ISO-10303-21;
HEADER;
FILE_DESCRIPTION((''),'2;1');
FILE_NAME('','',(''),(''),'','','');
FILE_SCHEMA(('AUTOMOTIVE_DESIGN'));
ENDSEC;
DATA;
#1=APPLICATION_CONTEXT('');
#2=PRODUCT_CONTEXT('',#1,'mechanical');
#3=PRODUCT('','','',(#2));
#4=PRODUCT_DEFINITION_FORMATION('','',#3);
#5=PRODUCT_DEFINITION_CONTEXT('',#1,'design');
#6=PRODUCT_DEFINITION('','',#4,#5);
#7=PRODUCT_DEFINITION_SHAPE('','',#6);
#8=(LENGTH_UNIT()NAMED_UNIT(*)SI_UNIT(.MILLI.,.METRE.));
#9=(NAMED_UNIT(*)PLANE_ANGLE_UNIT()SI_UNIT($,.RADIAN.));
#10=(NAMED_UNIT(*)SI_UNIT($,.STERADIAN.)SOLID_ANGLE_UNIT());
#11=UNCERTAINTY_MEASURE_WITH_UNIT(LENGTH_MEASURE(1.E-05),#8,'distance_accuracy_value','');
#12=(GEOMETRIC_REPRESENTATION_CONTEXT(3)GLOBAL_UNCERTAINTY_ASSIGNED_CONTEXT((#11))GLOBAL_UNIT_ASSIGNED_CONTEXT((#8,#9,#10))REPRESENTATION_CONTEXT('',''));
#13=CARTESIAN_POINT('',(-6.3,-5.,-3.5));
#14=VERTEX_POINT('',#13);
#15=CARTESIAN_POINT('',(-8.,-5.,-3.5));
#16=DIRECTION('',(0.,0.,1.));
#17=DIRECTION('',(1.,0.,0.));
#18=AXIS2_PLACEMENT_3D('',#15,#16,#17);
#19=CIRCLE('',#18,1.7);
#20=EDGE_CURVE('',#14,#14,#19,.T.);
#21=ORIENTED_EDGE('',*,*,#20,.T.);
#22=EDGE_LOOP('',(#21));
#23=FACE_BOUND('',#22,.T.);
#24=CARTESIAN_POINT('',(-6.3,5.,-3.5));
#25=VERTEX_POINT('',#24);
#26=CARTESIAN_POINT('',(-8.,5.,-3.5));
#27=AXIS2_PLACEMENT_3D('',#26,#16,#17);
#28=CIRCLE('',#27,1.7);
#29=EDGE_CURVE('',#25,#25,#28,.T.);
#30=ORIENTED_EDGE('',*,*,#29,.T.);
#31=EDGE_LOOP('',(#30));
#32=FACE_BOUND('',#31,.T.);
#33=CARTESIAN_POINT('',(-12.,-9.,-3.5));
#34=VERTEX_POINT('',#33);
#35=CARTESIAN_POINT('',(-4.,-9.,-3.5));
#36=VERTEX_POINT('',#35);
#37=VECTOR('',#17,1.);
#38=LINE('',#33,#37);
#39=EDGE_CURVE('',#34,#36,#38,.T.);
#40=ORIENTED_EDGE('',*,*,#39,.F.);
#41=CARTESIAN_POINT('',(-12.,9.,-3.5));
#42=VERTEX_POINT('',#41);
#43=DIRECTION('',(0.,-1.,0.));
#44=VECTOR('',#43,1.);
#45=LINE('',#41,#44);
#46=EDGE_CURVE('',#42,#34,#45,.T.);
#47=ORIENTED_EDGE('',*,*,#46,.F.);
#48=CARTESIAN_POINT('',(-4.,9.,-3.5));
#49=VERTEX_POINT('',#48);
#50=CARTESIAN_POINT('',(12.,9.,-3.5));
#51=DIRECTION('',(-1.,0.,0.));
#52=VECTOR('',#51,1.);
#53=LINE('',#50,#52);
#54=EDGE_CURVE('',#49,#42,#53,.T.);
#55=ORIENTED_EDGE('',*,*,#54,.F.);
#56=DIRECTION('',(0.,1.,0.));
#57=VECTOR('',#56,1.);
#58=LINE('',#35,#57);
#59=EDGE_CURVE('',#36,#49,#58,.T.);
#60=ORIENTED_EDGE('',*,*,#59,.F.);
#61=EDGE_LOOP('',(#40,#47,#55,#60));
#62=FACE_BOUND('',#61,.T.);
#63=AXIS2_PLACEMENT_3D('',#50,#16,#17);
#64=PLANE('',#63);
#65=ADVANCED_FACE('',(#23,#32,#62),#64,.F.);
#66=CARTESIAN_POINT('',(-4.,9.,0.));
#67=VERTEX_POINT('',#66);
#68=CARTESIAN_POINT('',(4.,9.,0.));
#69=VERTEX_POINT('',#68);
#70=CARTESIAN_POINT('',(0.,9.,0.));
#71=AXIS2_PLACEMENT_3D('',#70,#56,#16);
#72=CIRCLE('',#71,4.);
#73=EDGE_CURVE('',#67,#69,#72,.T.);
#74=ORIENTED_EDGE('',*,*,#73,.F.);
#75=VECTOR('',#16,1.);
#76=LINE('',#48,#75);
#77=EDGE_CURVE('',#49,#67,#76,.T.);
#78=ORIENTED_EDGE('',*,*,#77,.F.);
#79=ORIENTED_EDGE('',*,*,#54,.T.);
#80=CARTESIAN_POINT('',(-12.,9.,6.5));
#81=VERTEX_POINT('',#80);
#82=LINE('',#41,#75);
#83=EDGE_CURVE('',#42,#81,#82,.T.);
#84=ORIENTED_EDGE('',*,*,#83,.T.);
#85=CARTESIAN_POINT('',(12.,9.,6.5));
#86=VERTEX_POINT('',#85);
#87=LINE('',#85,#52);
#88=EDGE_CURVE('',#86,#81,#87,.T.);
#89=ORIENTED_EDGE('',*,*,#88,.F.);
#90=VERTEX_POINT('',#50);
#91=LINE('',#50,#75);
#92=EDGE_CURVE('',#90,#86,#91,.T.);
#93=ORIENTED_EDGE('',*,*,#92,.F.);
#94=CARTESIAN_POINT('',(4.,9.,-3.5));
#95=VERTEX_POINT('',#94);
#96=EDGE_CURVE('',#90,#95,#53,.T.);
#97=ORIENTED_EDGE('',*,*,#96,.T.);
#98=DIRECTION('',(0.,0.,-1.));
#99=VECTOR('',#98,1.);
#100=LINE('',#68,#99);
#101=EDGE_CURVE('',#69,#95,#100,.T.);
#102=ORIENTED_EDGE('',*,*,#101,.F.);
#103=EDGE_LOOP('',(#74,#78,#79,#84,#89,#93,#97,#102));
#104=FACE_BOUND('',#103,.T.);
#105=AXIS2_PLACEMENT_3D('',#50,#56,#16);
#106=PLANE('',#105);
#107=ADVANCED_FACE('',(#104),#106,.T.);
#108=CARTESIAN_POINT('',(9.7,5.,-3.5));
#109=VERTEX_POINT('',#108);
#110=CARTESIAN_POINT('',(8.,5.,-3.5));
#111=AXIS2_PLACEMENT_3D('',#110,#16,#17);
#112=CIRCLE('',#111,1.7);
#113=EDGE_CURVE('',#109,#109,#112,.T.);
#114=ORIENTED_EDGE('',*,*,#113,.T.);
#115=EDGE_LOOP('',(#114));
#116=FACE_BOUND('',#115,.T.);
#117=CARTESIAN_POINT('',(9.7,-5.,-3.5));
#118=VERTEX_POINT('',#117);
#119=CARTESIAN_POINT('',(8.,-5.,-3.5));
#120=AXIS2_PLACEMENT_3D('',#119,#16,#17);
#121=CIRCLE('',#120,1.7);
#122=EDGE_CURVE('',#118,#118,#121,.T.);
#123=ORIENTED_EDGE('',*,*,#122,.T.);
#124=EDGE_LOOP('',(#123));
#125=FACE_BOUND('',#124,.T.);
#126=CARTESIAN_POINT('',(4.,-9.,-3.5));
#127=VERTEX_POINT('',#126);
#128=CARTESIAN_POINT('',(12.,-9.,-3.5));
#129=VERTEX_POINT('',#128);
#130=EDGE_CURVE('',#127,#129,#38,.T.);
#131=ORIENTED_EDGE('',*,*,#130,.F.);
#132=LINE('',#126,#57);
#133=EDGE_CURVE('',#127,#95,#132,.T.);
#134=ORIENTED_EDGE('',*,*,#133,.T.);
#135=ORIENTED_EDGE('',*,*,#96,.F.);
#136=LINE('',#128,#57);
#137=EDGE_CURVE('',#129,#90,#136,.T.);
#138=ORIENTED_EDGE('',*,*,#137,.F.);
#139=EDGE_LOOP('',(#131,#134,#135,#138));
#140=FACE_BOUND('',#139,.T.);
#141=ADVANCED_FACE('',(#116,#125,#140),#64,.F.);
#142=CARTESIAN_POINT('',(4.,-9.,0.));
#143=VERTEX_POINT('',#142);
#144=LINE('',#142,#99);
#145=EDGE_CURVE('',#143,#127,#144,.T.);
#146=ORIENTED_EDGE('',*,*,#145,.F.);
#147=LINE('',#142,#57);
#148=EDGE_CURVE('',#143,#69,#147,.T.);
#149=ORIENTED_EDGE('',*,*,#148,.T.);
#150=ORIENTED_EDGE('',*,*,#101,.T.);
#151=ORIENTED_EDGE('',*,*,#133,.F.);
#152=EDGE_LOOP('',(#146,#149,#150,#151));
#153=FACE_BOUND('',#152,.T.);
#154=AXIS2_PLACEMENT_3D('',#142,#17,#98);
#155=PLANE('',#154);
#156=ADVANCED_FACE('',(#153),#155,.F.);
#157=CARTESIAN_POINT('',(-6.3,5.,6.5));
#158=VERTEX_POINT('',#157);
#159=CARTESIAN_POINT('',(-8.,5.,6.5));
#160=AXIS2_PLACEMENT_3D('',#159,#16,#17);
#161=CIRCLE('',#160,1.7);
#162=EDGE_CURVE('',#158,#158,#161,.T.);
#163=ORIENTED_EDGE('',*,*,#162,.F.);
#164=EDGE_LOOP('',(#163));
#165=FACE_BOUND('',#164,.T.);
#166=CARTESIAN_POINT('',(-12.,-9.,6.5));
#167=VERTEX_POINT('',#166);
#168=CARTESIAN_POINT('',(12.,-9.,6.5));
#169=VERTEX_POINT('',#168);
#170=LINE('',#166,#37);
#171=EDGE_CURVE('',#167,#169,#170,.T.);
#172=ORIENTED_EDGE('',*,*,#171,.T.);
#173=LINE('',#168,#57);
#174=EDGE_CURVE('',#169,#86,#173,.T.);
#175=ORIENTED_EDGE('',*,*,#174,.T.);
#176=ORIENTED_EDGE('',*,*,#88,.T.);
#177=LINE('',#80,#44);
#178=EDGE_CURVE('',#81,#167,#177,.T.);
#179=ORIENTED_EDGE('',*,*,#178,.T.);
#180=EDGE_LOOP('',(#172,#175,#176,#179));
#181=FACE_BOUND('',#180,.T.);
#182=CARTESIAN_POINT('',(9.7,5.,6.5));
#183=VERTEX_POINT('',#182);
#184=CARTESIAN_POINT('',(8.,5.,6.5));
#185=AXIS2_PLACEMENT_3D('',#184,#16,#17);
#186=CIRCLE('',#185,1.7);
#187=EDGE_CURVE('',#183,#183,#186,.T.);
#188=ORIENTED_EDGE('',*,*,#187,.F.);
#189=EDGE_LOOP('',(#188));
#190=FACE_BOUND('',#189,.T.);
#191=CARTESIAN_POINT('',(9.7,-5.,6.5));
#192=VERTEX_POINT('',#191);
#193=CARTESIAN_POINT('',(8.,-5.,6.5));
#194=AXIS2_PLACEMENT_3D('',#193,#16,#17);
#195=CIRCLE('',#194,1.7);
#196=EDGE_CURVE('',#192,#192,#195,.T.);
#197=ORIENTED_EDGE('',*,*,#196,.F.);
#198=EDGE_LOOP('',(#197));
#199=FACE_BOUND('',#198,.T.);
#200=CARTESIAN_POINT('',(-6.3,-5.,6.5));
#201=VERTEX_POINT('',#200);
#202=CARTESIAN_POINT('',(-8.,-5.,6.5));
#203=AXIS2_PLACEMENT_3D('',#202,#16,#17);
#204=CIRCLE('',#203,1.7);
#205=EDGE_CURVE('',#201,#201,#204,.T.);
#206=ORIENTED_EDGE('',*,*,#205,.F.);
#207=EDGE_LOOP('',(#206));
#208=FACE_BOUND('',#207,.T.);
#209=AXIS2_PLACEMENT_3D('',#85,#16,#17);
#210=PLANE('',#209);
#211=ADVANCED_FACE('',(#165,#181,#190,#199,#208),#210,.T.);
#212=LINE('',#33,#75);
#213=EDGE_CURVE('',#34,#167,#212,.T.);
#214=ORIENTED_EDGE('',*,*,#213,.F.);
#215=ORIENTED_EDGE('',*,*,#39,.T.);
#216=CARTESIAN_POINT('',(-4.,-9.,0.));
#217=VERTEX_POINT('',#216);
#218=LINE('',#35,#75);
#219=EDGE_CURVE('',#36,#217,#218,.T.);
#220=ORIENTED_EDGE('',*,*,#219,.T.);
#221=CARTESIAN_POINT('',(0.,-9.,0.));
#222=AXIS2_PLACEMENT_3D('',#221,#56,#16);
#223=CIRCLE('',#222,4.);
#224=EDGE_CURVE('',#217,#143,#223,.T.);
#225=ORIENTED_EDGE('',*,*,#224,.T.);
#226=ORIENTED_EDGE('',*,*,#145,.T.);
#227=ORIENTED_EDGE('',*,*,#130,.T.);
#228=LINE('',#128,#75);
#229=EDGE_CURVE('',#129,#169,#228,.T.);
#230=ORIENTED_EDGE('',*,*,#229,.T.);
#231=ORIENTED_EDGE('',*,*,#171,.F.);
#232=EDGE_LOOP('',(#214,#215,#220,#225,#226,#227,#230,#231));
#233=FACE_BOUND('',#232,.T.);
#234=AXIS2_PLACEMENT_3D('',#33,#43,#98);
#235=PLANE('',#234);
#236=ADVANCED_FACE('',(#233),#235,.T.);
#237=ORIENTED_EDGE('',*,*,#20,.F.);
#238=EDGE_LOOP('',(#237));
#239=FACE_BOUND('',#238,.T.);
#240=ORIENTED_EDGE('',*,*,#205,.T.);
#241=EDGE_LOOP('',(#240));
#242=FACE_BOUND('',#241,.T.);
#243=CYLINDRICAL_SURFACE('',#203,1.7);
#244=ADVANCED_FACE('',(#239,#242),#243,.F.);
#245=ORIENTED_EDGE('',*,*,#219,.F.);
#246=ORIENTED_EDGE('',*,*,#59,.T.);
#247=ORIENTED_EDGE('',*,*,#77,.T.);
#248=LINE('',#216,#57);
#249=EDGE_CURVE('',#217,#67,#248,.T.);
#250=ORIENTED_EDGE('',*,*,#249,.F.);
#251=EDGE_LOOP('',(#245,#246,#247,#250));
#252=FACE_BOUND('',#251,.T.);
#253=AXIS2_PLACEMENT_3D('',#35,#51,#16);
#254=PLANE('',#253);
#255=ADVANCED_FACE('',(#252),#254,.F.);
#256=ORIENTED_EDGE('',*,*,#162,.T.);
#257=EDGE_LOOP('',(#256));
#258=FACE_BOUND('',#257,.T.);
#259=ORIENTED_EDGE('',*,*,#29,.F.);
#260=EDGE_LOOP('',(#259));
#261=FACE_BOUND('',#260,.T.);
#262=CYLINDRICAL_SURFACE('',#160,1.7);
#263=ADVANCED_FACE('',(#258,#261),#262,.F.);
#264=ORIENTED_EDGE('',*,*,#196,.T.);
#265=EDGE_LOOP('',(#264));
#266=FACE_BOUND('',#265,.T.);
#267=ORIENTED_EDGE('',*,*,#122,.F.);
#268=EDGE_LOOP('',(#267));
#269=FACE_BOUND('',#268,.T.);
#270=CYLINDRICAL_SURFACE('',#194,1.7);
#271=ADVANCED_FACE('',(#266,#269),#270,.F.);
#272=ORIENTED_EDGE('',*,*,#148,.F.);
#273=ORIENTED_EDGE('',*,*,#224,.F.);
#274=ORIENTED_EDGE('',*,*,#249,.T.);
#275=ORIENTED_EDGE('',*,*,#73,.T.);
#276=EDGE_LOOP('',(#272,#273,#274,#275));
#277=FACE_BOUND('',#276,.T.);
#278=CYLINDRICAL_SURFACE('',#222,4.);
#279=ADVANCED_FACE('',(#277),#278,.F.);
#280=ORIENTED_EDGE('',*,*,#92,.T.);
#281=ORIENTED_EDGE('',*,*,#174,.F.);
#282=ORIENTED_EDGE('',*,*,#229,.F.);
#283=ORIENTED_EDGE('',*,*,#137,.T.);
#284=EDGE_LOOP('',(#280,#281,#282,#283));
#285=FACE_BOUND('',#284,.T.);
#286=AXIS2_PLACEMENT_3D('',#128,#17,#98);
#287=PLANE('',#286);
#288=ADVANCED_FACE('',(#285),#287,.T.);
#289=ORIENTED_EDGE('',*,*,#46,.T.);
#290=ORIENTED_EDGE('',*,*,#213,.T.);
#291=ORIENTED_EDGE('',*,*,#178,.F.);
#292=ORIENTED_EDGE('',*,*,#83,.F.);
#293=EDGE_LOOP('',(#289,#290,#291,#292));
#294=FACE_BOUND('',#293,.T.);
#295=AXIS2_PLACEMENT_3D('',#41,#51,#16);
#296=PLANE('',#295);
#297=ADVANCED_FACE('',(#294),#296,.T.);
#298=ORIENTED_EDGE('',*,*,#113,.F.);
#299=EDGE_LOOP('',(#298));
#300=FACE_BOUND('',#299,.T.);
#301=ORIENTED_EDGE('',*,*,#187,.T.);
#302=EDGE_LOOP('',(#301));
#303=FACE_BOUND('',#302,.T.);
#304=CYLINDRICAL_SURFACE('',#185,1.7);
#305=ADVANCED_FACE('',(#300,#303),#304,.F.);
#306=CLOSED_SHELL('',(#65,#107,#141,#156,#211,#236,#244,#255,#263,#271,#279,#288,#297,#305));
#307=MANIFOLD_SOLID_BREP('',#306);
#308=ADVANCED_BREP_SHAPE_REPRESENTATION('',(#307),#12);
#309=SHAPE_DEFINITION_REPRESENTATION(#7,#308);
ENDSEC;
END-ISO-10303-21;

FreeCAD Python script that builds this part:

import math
import FreeCAD as App
import Part
import Sketcher


def add_polygon(sketch, points):
    """Adds a closed chain of lines whose ends are joined by coincident constraints."""
    first, n = sketch.GeometryCount, len(points)
    for a, b in zip(points, points[1:] + points[:1]):
        sketch.addGeometry(Part.LineSegment(App.Vector(*a, 0), App.Vector(*b, 0)), False)
    for i in range(n):
        sketch.addConstraint(Sketcher.Constraint("Coincident", first + i, 2, first + (i + 1) % n, 1))

doc = App.newDocument("Part")
params = doc.addObject("Spreadsheet::Sheet", "Params")
for row, (alias, value) in enumerate([
    ("sketch1_width", "24 mm"),
    ("sketch1_height", "18 mm"),
    ("pad1_length", "10 mm"),
    ("sketch2_radius", "4 mm"),
    ("sketch2_height", "3.5 mm"),
    ("sketch3_diameter", "3.4 mm"),
    ("hole_diameter", "3.4 mm"),
    ("sketch4_diameter", "3.4 mm"),
    ("hole2_diameter", "3.4 mm"),
    ("sketch5_diameter", "3.4 mm"),
    ("hole3_diameter", "3.4 mm"),
    ("sketch6_diameter", "3.4 mm"),
    ("hole4_diameter", "3.4 mm"),
], start=1):
    params.set(f"A{row}", alias)
    params.set(f"B{row}", "=" + value)
    params.setAlias(f"B{row}", alias)

body = doc.addObject("PartDesign::Body", "Body")

# Sketch on XY plane
sketch1 = body.newObject("Sketcher::SketchObject", "Sketch")
sketch1.AttachmentSupport = (doc.getObject("XY_Plane"), [""])
sketch1.MapMode = "FlatFace"
sketch1.AttachmentOffset = App.Placement(App.Vector(0, 0, 6.5), App.Rotation())
add_polygon(sketch1, [(-12, 9), (-12, -9), (12, -9), (12, 9)])  # lines 0-3
sketch1.addConstraint([
    Sketcher.Constraint("Vertical", 0),
    Sketcher.Constraint("Horizontal", 1),
    Sketcher.Constraint("Vertical", 2),
    Sketcher.Constraint("Horizontal", 3),
    Sketcher.Constraint("Symmetric", 0, 2, 2, 2, -1, 1),
    Sketcher.Constraint("DistanceX", 1, 1, 1, 2, 24.0),
    Sketcher.Constraint("DistanceY", 0, 2, 0, 1, 18.0),
])
sketch1.setExpression("Constraints[9]", "Params.sketch1_width")
sketch1.setExpression("Constraints[10]", "Params.sketch1_height")
pad1 = body.newObject("PartDesign::Pad", "Pad")
pad1.Profile = sketch1
pad1.setExpression("Length", "Params.pad1_length")
pad1.Reversed = True

# Sketch on XZ plane
sketch2 = body.newObject("Sketcher::SketchObject", "Sketch001")
sketch2.AttachmentSupport = (doc.getObject("XZ_Plane"), [""])
sketch2.MapMode = "FlatFace"
sketch2.AttachmentOffset = App.Placement(App.Vector(0, 0, -9), App.Rotation())
sketch2.addGeometry([
    Part.LineSegment(App.Vector(4, -3.5, 0), App.Vector(-4, -3.5, 0)),
    Part.LineSegment(App.Vector(-4, -3.5, 0), App.Vector(-4, 0, 0)),
    Part.ArcOfCircle(Part.Circle(App.Vector(0, 0, 0), App.Vector(0, 0, 1), 4), math.radians(0), math.radians(180)),
    Part.LineSegment(App.Vector(4, 0, 0), App.Vector(4, -3.5, 0)),
], False)
sketch2.addConstraint([
    Sketcher.Constraint("Coincident", 0, 2, 1, 1),
    Sketcher.Constraint("Tangent", 1, 2, 2, 2),
    Sketcher.Constraint("Tangent", 2, 1, 3, 1),
    Sketcher.Constraint("Coincident", 3, 2, 0, 1),
    Sketcher.Constraint("Horizontal", 0),
    Sketcher.Constraint("Vertical", 1),
    Sketcher.Constraint("Vertical", 3),
    Sketcher.Constraint("Coincident", 2, 3, -1, 1),
    Sketcher.Constraint("Radius", 2, 4.0),
    Sketcher.Constraint("DistanceY", 1, 1, 1, 2, 3.5),
])
sketch2.setExpression("Constraints[8]", "Params.sketch2_radius")
sketch2.setExpression("Constraints[9]", "Params.sketch2_height")
pocket1 = body.newObject("PartDesign::Pocket", "Pocket")
pocket1.Profile = sketch2
pocket1.Type = "ThroughAll"
pocket1.Reversed = True

# Sketch on XY plane
sketch3 = body.newObject("Sketcher::SketchObject", "Sketch002")
sketch3.AttachmentSupport = (doc.getObject("XY_Plane"), [""])
sketch3.MapMode = "FlatFace"
sketch3.AttachmentOffset = App.Placement(App.Vector(0, 0, 6.5), App.Rotation())
sketch3.addGeometry(Part.Circle(App.Vector(8, -5, 0), App.Vector(0, 0, 1), 1.7), False)
sketch3.addConstraint([
    Sketcher.Constraint("Diameter", 0, 3.4),
    Sketcher.Constraint("DistanceX", -1, 1, 0, 3, 8.0),
    Sketcher.Constraint("DistanceY", 0, 3, -1, 1, 5.0),
])
sketch3.setExpression("Constraints[0]", "Params.sketch3_diameter")
doc.recompute()
hole = body.newObject("PartDesign::Hole", "Hole")
hole.Profile = sketch3
hole.ThreadType = "None"
hole.setExpression("Diameter", "Params.hole_diameter")
hole.DepthType = "ThroughAll"

# Sketch on XY plane
sketch4 = body.newObject("Sketcher::SketchObject", "Sketch003")
sketch4.AttachmentSupport = (doc.getObject("XY_Plane"), [""])
sketch4.MapMode = "FlatFace"
sketch4.AttachmentOffset = App.Placement(App.Vector(0, 0, 6.5), App.Rotation())
sketch4.addGeometry(Part.Circle(App.Vector(-8, 5, 0), App.Vector(0, 0, 1), 1.7), False)
sketch4.addConstraint([
    Sketcher.Constraint("Diameter", 0, 3.4),
    Sketcher.Constraint("DistanceX", 0, 3, -1, 1, 8.0),
    Sketcher.Constraint("DistanceY", -1, 1, 0, 3, 5.0),
])
sketch4.setExpression("Constraints[0]", "Params.sketch4_diameter")
doc.recompute()
hole2 = body.newObject("PartDesign::Hole", "Hole001")
hole2.Profile = sketch4
hole2.ThreadType = "None"
hole2.setExpression("Diameter", "Params.hole2_diameter")
hole2.DepthType = "ThroughAll"

# Sketch on XY plane
sketch5 = body.newObject("Sketcher::SketchObject", "Sketch004")
sketch5.AttachmentSupport = (doc.getObject("XY_Plane"), [""])
sketch5.MapMode = "FlatFace"
sketch5.AttachmentOffset = App.Placement(App.Vector(0, 0, 6.5), App.Rotation())
sketch5.addGeometry(Part.Circle(App.Vector(-8, -5, 0), App.Vector(0, 0, 1), 1.7), False)
sketch5.addConstraint([
    Sketcher.Constraint("Diameter", 0, 3.4),
    Sketcher.Constraint("DistanceX", 0, 3, -1, 1, 8.0),
    Sketcher.Constraint("DistanceY", 0, 3, -1, 1, 5.0),
])
sketch5.setExpression("Constraints[0]", "Params.sketch5_diameter")
doc.recompute()
hole3 = body.newObject("PartDesign::Hole", "Hole002")
hole3.Profile = sketch5
hole3.ThreadType = "None"
hole3.setExpression("Diameter", "Params.hole3_diameter")
hole3.DepthType = "ThroughAll"

# Sketch on XY plane
sketch6 = body.newObject("Sketcher::SketchObject", "Sketch005")
sketch6.AttachmentSupport = (doc.getObject("XY_Plane"), [""])
sketch6.MapMode = "FlatFace"
sketch6.AttachmentOffset = App.Placement(App.Vector(0, 0, 6.5), App.Rotation())
sketch6.addGeometry(Part.Circle(App.Vector(8, 5, 0), App.Vector(0, 0, 1), 1.7), False)
sketch6.addConstraint([
    Sketcher.Constraint("Diameter", 0, 3.4),
    Sketcher.Constraint("DistanceX", -1, 1, 0, 3, 8.0),
    Sketcher.Constraint("DistanceY", -1, 1, 0, 3, 5.0),
])
sketch6.setExpression("Constraints[0]", "Params.sketch6_diameter")
doc.recompute()
hole4 = body.newObject("PartDesign::Hole", "Hole003")
hole4.Profile = sketch6
hole4.ThreadType = "None"
hole4.setExpression("Diameter", "Params.hole4_diameter")
hole4.DepthType = "ThroughAll"

doc.recompute()
